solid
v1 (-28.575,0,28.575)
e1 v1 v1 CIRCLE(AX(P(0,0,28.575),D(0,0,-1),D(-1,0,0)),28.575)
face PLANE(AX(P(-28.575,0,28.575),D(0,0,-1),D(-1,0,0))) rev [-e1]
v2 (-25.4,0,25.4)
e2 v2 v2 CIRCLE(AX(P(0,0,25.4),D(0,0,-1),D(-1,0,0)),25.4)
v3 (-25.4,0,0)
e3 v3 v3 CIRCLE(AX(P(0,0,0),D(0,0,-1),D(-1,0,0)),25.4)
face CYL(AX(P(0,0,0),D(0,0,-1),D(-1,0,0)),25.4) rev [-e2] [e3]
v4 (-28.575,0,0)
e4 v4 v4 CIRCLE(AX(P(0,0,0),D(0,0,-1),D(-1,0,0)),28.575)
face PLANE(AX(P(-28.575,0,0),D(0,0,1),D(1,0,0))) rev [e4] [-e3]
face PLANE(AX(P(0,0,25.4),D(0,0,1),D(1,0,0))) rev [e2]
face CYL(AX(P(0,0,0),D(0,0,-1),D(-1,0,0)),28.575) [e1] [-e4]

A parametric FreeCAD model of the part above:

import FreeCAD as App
import Part
import Sketcher
from FreeCAD import Vector
Q = App.Units.Quantity


def add_polygon(sketch, points):
    """Adds a closed chain of lines whose ends are joined by coincident constraints."""
    first, n = sketch.GeometryCount, len(points)
    for a, b in zip(points, points[1:] + points[:1]):
        sketch.addGeometry(Part.LineSegment(App.Vector(*a, 0), App.Vector(*b, 0)), False)
    for i in range(n):
        sketch.addConstraint(Sketcher.Constraint("Coincident", first + i, 2, first + (i + 1) % n, 1))

doc = App.newDocument("Part")
body = doc.addObject("PartDesign::Body", "Body")

# Sketch on XZ plane
sketch1 = body.newObject("Sketcher::SketchObject", "Sketch")
sketch1.AttachmentSupport = (doc.getObject("XZ_Plane"), [""])
sketch1.MapMode = "FlatFace"
add_polygon(sketch1, [(-25.4, 0), (-25.4, 25.4), (0, 25.4), (0, 28.6), (-28.6, 28.6), (-28.6, 0)])  # lines 0-5
sketch1.addConstraint(Sketcher.Constraint("Vertical", 0))
sketch1.addConstraint(Sketcher.Constraint("Horizontal", 1))
sketch1.addConstraint(Sketcher.Constraint("Vertical", 2))
sketch1.addConstraint(Sketcher.Constraint("Horizontal", 3))
sketch1.addConstraint(Sketcher.Constraint("Vertical", 4))
sketch1.addConstraint(Sketcher.Constraint("Horizontal", 5))
sketch1.addConstraint(Sketcher.Constraint("PointOnObject", 1, 2, -2))
sketch1.addConstraint(Sketcher.Constraint("PointOnObject", 4, 2, -1))
sketch1.addConstraint(Sketcher.Constraint("Equal", 1, 0))
sketch1.addConstraint(Sketcher.Constraint("Equal", 5, 2))
sketch1.addConstraint(Sketcher.Constraint("DistanceX", 1, 1, 1, 2, Q("1 in")))
sketch1.addConstraint(Sketcher.Constraint("DistanceX", 3, 2, 3, 1, Q("1.125 in")))
revolution = body.newObject("PartDesign::Revolution", "Revolution")
revolution.Profile = sketch1
revolution.ReferenceAxis = (sketch1, ["V_Axis"])
revolution.Angle = 360

doc.recompute()
